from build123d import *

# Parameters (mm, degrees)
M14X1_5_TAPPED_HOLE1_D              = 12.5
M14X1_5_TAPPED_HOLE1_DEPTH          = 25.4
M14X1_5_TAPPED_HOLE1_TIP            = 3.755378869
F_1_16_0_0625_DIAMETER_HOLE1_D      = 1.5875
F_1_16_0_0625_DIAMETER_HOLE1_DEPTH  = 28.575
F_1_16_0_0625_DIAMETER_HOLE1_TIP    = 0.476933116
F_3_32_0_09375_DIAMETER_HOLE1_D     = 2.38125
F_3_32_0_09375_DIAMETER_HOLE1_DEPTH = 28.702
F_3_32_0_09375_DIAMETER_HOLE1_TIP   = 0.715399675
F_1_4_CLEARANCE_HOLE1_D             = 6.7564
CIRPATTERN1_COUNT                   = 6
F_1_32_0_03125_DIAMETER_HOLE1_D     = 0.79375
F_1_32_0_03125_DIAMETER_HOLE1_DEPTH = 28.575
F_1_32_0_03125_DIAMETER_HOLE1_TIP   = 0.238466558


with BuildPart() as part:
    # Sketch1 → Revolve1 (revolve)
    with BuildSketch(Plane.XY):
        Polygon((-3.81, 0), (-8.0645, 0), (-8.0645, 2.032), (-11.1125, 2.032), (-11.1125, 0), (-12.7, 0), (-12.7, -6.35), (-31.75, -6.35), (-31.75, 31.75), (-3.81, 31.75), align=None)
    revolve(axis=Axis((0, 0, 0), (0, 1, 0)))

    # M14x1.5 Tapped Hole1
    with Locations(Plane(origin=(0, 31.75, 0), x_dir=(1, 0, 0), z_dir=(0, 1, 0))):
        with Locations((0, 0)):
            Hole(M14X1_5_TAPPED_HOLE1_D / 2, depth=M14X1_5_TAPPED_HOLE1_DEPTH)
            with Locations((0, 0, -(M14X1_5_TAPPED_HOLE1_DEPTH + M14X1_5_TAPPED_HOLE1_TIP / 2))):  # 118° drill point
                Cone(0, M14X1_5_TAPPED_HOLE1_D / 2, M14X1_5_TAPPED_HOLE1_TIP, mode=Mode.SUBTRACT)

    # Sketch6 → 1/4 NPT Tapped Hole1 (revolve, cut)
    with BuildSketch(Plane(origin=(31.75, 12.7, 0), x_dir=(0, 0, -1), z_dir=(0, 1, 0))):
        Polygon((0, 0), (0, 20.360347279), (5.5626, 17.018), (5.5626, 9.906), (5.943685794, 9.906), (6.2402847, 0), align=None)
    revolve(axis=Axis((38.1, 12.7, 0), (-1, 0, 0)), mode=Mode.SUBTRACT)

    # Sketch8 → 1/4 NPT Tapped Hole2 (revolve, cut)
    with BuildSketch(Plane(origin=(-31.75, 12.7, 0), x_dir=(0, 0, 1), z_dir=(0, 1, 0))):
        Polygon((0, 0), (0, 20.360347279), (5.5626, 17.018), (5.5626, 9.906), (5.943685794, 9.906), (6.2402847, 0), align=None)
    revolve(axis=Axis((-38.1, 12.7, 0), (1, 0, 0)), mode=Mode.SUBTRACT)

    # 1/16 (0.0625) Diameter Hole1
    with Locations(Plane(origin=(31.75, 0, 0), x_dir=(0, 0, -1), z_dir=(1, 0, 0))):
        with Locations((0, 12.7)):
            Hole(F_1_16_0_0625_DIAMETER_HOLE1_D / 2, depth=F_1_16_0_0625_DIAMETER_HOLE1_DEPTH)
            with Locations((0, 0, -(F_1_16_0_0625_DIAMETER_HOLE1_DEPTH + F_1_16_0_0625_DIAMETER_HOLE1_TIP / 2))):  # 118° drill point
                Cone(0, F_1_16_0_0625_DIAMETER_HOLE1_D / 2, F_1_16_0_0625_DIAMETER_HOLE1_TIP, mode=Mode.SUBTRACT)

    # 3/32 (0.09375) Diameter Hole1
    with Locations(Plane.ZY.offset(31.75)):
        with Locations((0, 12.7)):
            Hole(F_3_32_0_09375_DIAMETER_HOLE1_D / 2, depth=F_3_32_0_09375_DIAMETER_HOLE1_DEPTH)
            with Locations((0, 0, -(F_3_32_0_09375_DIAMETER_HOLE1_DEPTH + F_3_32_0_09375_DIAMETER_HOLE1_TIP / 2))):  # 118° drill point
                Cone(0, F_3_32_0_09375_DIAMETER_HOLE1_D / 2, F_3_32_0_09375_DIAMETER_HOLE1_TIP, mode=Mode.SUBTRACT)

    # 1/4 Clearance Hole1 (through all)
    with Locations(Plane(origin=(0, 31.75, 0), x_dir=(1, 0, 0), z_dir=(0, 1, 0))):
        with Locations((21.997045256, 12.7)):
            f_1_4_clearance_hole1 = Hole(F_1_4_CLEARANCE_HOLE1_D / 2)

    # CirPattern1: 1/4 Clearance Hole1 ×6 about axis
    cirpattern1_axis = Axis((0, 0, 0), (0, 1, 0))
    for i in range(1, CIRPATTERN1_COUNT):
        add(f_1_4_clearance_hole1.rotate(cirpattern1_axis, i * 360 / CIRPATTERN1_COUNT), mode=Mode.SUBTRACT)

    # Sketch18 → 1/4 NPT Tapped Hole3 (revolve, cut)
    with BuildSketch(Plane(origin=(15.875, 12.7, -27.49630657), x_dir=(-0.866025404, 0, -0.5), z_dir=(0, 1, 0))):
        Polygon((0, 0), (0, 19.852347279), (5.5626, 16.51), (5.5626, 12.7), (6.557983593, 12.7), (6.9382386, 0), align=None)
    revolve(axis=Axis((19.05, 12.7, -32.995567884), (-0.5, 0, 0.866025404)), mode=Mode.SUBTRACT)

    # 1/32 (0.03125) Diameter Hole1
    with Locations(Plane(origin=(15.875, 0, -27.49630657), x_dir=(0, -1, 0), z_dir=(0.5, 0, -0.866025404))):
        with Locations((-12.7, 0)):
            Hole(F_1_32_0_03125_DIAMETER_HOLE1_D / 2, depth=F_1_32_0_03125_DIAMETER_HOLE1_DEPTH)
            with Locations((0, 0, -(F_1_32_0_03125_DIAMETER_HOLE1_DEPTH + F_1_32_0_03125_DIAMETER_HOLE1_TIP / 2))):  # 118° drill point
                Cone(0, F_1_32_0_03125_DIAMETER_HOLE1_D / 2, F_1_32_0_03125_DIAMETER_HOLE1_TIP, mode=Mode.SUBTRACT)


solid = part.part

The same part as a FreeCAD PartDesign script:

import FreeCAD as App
import Part
import Sketcher
Q = App.Units.Quantity


def add_polygon(sketch, points):
    """Adds a closed chain of lines whose ends are joined by coincident constraints."""
    first, n = sketch.GeometryCount, len(points)
    for a, b in zip(points, points[1:] + points[:1]):
        sketch.addGeometry(Part.LineSegment(App.Vector(*a, 0), App.Vector(*b, 0)), False)
    for i in range(n):
        sketch.addConstraint(Sketcher.Constraint("Coincident", first + i, 2, first + (i + 1) % n, 1))

doc = App.newDocument("Part")
body = doc.addObject("PartDesign::Body", "Body")

# Sketch on XY plane
sketch1 = body.newObject("Sketcher::SketchObject", "Sketch")
sketch1.AttachmentSupport = (doc.getObject("XY_Plane"), [""])
sketch1.MapMode = "FlatFace"
add_polygon(sketch1, [(-8.1, 0), (-3.8, 0), (-3.8, 31.8), (-31.8, 31.8), (-31.8, -6.3), (-12.7, -6.3), (-12.7, 0), (-11.1, 0), (-11.1, 2), (-8.1, 2)])  # lines 0-9
sketch1.addConstraint(Sketcher.Constraint("Horizontal", 0))
sketch1.addConstraint(Sketcher.Constraint("Vertical", 1))
sketch1.addConstraint(Sketcher.Constraint("Horizontal", 2))
sketch1.addConstraint(Sketcher.Constraint("Vertical", 3))
sketch1.addConstraint(Sketcher.Constraint("Horizontal", 4))
sketch1.addConstraint(Sketcher.Constraint("Vertical", 5))
sketch1.addConstraint(Sketcher.Constraint("Horizontal", 6))
sketch1.addConstraint(Sketcher.Constraint("Vertical", 7))
sketch1.addConstraint(Sketcher.Constraint("Horizontal", 8))
sketch1.addConstraint(Sketcher.Constraint("Vertical", 9))
sketch1.addConstraint(Sketcher.Constraint("PointOnObject", 0, 2, -1))
sketch1.addConstraint(Sketcher.Constraint("PointOnObject", 5, 2, -1))
sketch1.addConstraint(Sketcher.Constraint("DistanceX", 2, 2, 2, 1, Q("1.1 in")))
sketch1.addConstraint(Sketcher.Constraint("DistanceY", 3, 2, 3, 1, Q("1.5 in")))
sketch1.addConstraint(Sketcher.Constraint("DistanceX", 4, 1, 4, 2, Q("0.75 in")))
sketch1.addConstraint(Sketcher.Constraint("DistanceX", 8, 1, 8, 2, Q("0.12 in")))
sketch1.addConstraint(Sketcher.Constraint("DistanceY", 1, 1, 1, 2, Q("1.25 in")))
sketch1.addConstraint(Sketcher.Constraint("DistanceY", 7, 1, 7, 2, Q("0.08 in")))
sketch1.addConstraint(Sketcher.Constraint("DistanceX", 4, 2, -1, 1, Q("0.5 in")))
sketch1.addConstraint(Sketcher.Constraint("DistanceX", 6, 1, 6, 2, Q("0.0625 in")))
revolution = body.newObject("PartDesign::Revolution", "Revolution")
revolution.Profile = sketch1
revolution.ReferenceAxis = (sketch1, ["V_Axis"])
revolution.Angle = 360

# Sketch on XZ plane
sketch2 = body.newObject("Sketcher::SketchObject", "Sketch001")
sketch2.AttachmentSupport = (doc.getObject("XZ_Plane"), [""])
sketch2.MapMode = "FlatFace"
sketch2.AttachmentOffset = App.Placement(App.Vector(0, 0, -1.25 * 25.4), App.Rotation())
sketch2.addGeometry(Part.Circle(App.Vector(0, 0, 0), App.Vector(0, 0, 1), 6), False)
sketch2.addConstraint(Sketcher.Constraint("Coincident", 0, 3, -1, 1))
sketch2.addConstraint(Sketcher.Constraint("Diameter", 0, 12.5))
doc.recompute()
hole = body.newObject("PartDesign::Hole", "Hole")
hole.Profile = sketch2
hole.ThreadType = "None"
hole.Diameter = 12.5
hole.DepthType = "Dimension"
hole.Depth = Q("1 in")
hole.DrillPoint = "Angled"
hole.DrillPointAngle = 118
hole.Reversed = True

# Sketch on XZ plane
sketch3 = body.newObject("Sketcher::SketchObject", "Sketch002")
sketch3.AttachmentSupport = (doc.getObject("XZ_Plane"), [""])
sketch3.MapMode = "FlatFace"
sketch3.AttachmentOffset = App.Placement(App.Vector(0, 0, -0.5 * 25.4), App.Rotation())
add_polygon(sketch3, [(11.39, 0), (31.75, 0), (31.75, -6.24), (21.84, -5.94), (21.84, -5.56), (14.73, -5.56)])  # lines 0-5
sketch3.addConstraint(Sketcher.Constraint("Horizontal", 0))
sketch3.addConstraint(Sketcher.Constraint("Vertical", 1))
sketch3.addConstraint(Sketcher.Constraint("Vertical", 3))
sketch3.addConstraint(Sketcher.Constraint("Horizontal", 4))
sketch3.addConstraint(Sketcher.Constraint("PointOnObject", 0, 2, -1))
sketch3.addConstraint(Sketcher.Constraint("Angle", 5, Q("121 deg")))
sketch3.addConstraint(Sketcher.Constraint("DistanceX", 4, 2, 4, 1, Q("0.28 in")))
sketch3.addConstraint(Sketcher.Constraint("DistanceX", -1, 1, 0, 2, Q("1.25 in")))
sketch3.addConstraint(Sketcher.Constraint("DistanceX", -1, 1, 2, 2, Q("0.86 in")))
sketch3.addConstraint(Sketcher.Constraint("DistanceY", 3, 2, -1, 1, Q("0.219 in")))
sketch3.addConstraint(Sketcher.Constraint("DistanceY", 1, 2, 2, 2, 0.296599))
sketch3.addConstraint(Sketcher.Constraint("DistanceY", 1, 2, 1, 1, 6.240285))
groove = body.newObject("PartDesign::Groove", "Groove")
groove.Profile = sketch3
groove.ReferenceAxis = (sketch3, ["H_Axis"])
groove.Angle = 360

# Sketch on XZ plane
sketch4 = body.newObject("Sketcher::SketchObject", "Sketch003")
sketch4.AttachmentSupport = (doc.getObject("XZ_Plane"), [""])
sketch4.MapMode = "FlatFace"
sketch4.AttachmentOffset = App.Placement(App.Vector(0, 0, -0.5 * 25.4), App.Rotation())
add_polygon(sketch4, [(-11.39, 0), (-31.75, 0), (-31.75, 6.24), (-21.84, 5.94), (-21.84, 5.56), (-14.73, 5.56)])  # lines 0-5
sketch4.addConstraint(Sketcher.Constraint("Horizontal", 0))
sketch4.addConstraint(Sketcher.Constraint("Vertical", 1))
sketch4.addConstraint(Sketcher.Constraint("Vertical", 3))
sketch4.addConstraint(Sketcher.Constraint("Horizontal", 4))
sketch4.addConstraint(Sketcher.Constraint("PointOnObject", 0, 2, -1))
sketch4.addConstraint(Sketcher.Constraint("Angle", 5, Q("-59 deg")))
sketch4.addConstraint(Sketcher.Constraint("DistanceX", 4, 1, 4, 2, Q("0.28 in")))
sketch4.addConstraint(Sketcher.Constraint("DistanceX", 0, 2, -1, 1, Q("1.25 in")))
sketch4.addConstraint(Sketcher.Constraint("DistanceX", 2, 2, -1, 1, Q("0.86 in")))
sketch4.addConstraint(Sketcher.Constraint("DistanceY", -1, 1, 3, 2, Q("0.219 in")))
sketch4.addConstraint(Sketcher.Constraint("DistanceY", 2, 2, 1, 2, 0.296599))
sketch4.addConstraint(Sketcher.Constraint("DistanceY", 1, 1, 1, 2, 6.240285))
groove2 = body.newObject("PartDesign::Groove", "Groove001")
groove2.Profile = sketch4
groove2.ReferenceAxis = (sketch4, ["H_Axis"])
groove2.Angle = 360

# Sketch on YZ plane
sketch5 = body.newObject("Sketcher::SketchObject", "Sketch004")
sketch5.AttachmentSupport = (doc.getObject("YZ_Plane"), [""])
sketch5.MapMode = "FlatFace"
sketch5.AttachmentOffset = App.Placement(App.Vector(0, 0, 1.25 * 25.4), App.Rotation())
sketch5.addGeometry(Part.Circle(App.Vector(12.7, 0, 0), App.Vector(0, 0, 1), 0.8), False)
sketch5.addConstraint(Sketcher.Constraint("PointOnObject", 0, 3, -1))
sketch5.addConstraint(Sketcher.Constraint("Diameter", 0, Q("0.0625 in")))
sketch5.addConstraint(Sketcher.Constraint("DistanceX", -1, 1, 0, 3, Q("0.5 in")))
doc.recompute()
hole2 = body.newObject("PartDesign::Hole", "Hole001")
hole2.Profile = sketch5
hole2.ThreadType = "None"
hole2.Diameter = Q("0.0625 in")
hole2.DepthType = "Dimension"
hole2.Depth = Q("1.125 in")
hole2.DrillPoint = "Angled"
hole2.DrillPointAngle = 118

# Sketch on YZ plane
sketch6 = body.newObject("Sketcher::SketchObject", "Sketch005")
sketch6.AttachmentSupport = (doc.getObject("YZ_Plane"), [""])
sketch6.MapMode = "FlatFace"
sketch6.AttachmentOffset = App.Placement(App.Vector(0, 0, -1.25 * 25.4), App.Rotation())
sketch6.addGeometry(Part.Circle(App.Vector(12.7, 0, 0), App.Vector(0, 0, 1), 1.2), False)
sketch6.addConstraint(Sketcher.Constraint("PointOnObject", 0, 3, -1))
sketch6.addConstraint(Sketcher.Constraint("Diameter", 0, Q("0.09375 in")))
sketch6.addConstraint(Sketcher.Constraint("DistanceX", -1, 1, 0, 3, Q("0.5 in")))
doc.recompute()
hole3 = body.newObject("PartDesign::Hole", "Hole002")
hole3.Profile = sketch6
hole3.ThreadType = "None"
hole3.Diameter = Q("0.09375 in")
hole3.DepthType = "Dimension"
hole3.Depth = Q("1.13 in")
hole3.DrillPoint = "Angled"
hole3.DrillPointAngle = 118
hole3.Reversed = True

# Sketch on XZ plane
sketch7 = body.newObject("Sketcher::SketchObject", "Sketch006")
sketch7.AttachmentSupport = (doc.getObject("XZ_Plane"), [""])
sketch7.MapMode = "FlatFace"
sketch7.AttachmentOffset = App.Placement(App.Vector(0, 0, -1.25 * 25.4), App.Rotation())
sketch7.addGeometry(Part.Circle(App.Vector(22, -12.7, 0), App.Vector(0, 0, 1), 3.4), False)
sketch7.addConstraint(Sketcher.Constraint("Diameter", 0, Q("0.266 in")))
sketch7.addConstraint(Sketcher.Constraint("DistanceY", 0, 3, -1, 1, Q("0.5 in")))
sketch7.addConstraint(Sketcher.Constraint("DistanceX", -1, 1, 0, 3, 21.997045))
doc.recompute()
hole4 = body.newObject("PartDesign::Hole", "Hole003")
hole4.Profile = sketch7
hole4.ThreadType = "None"
hole4.Diameter = Q("0.266 in")
hole4.DepthType = "ThroughAll"
hole4.Reversed = True
doc.recompute()

polarpattern = body.newObject("PartDesign::PolarPattern", "PolarPattern")
polarpattern.Originals = [hole4]
polarpattern.Axis = (doc.getObject("Y_Axis"), [""])
polarpattern.Angle = 360
polarpattern.Occurrences = 6
body.Tip = polarpattern

# Sketch on XZ plane
sketch8 = body.newObject("Sketcher::SketchObject", "Sketch007")
sketch8.AttachmentSupport = (doc.getObject("XZ_Plane"), [""])
sketch8.MapMode = "FlatFace"
sketch8.AttachmentOffset = App.Placement(App.Vector(0, 0, -0.5 * 25.4), App.Rotation())
add_polygon(sketch8, [(5.9, -10.3), (15.9, -27.5), (9.9, -31), (3.8, -19.8), (4.7, -19.3), (2.8, -16)])  # lines 0-5
sketch8.addGeometry(Part.LineSegment(App.Vector(15.9, -27.5, 0), App.Vector(5.9, -10.3, 0)), True)  # axis
sketch8.addConstraint(Sketcher.Constraint("Coincident", 6, 1, 0, 2))
sketch8.addConstraint(Sketcher.Constraint("Coincident", 6, 2, 5, 2))
sketch8.addConstraint(Sketcher.Constraint("Perpendicular", 0, 1))
sketch8.addConstraint(Sketcher.Constraint("Parallel", 1, 3))
sketch8.addConstraint(Sketcher.Constraint("Perpendicular", 3, 4))
sketch8.addConstraint(Sketcher.Constraint("Angle", 0, Q("-60 deg")))
sketch8.addConstraint(Sketcher.Constraint("Angle", 5, Q("61 deg")))
sketch8.addConstraint(Sketcher.Constraint("Distance", 4, Q("0.15 in")))
sketch8.addConstraint(Sketcher.Constraint("DistanceX", -1, 1, 0, 2, Q("0.625 in")))
sketch8.addConstraint(Sketcher.Constraint("DistanceY", 1, 2, 4, 2, 14.985899))
sketch8.addConstraint(Sketcher.Constraint("Distance", 1, 6.938239))
sketch8.addConstraint(Sketcher.Constraint("Distance", 2, 12.705691))
sketch8.addConstraint(Sketcher.Constraint("DistanceX", -1, 1, 2, 2, 3.84562))
sketch8.addConstraint(Sketcher.Constraint("DistanceY", 5, 2, -1, 1, 10.303669))
groove3 = body.newObject("PartDesign::Groove", "Groove002")
groove3.Profile = sketch8
groove3.ReferenceAxis = (sketch8, ["Axis0"])
groove3.Angle = 360

# Sketch on an angled plane
sketch9 = body.newObject("Sketcher::SketchObject", "Sketch008")
sketch9.Placement = App.Placement(App.Vector(15.875, 0, -27.496307), App.Rotation(App.Vector(0, -1, 0), App.Vector(-0.866025404, 0, -0.5), App.Vector(0.5, 0, -0.866025404), "ZXY"))
sketch9.addGeometry(Part.Circle(App.Vector(-12.7, 0, 0), App.Vector(0, 0, 1), 0.4), False)
sketch9.addConstraint(Sketcher.Constraint("PointOnObject", 0, 3, -1))
sketch9.addConstraint(Sketcher.Constraint("Diameter", 0, Q("0.03125 in")))
sketch9.addConstraint(Sketcher.Constraint("DistanceX", 0, 3, -1, 1, Q("0.5 in")))
doc.recompute()
hole5 = body.newObject("PartDesign::Hole", "Hole004")
hole5.Profile = sketch9
hole5.ThreadType = "None"
hole5.Diameter = Q("0.03125 in")
hole5.DepthType = "Dimension"
hole5.Depth = Q("1.125 in")
hole5.DrillPoint = "Angled"
hole5.DrillPointAngle = 118

doc.recompute()
